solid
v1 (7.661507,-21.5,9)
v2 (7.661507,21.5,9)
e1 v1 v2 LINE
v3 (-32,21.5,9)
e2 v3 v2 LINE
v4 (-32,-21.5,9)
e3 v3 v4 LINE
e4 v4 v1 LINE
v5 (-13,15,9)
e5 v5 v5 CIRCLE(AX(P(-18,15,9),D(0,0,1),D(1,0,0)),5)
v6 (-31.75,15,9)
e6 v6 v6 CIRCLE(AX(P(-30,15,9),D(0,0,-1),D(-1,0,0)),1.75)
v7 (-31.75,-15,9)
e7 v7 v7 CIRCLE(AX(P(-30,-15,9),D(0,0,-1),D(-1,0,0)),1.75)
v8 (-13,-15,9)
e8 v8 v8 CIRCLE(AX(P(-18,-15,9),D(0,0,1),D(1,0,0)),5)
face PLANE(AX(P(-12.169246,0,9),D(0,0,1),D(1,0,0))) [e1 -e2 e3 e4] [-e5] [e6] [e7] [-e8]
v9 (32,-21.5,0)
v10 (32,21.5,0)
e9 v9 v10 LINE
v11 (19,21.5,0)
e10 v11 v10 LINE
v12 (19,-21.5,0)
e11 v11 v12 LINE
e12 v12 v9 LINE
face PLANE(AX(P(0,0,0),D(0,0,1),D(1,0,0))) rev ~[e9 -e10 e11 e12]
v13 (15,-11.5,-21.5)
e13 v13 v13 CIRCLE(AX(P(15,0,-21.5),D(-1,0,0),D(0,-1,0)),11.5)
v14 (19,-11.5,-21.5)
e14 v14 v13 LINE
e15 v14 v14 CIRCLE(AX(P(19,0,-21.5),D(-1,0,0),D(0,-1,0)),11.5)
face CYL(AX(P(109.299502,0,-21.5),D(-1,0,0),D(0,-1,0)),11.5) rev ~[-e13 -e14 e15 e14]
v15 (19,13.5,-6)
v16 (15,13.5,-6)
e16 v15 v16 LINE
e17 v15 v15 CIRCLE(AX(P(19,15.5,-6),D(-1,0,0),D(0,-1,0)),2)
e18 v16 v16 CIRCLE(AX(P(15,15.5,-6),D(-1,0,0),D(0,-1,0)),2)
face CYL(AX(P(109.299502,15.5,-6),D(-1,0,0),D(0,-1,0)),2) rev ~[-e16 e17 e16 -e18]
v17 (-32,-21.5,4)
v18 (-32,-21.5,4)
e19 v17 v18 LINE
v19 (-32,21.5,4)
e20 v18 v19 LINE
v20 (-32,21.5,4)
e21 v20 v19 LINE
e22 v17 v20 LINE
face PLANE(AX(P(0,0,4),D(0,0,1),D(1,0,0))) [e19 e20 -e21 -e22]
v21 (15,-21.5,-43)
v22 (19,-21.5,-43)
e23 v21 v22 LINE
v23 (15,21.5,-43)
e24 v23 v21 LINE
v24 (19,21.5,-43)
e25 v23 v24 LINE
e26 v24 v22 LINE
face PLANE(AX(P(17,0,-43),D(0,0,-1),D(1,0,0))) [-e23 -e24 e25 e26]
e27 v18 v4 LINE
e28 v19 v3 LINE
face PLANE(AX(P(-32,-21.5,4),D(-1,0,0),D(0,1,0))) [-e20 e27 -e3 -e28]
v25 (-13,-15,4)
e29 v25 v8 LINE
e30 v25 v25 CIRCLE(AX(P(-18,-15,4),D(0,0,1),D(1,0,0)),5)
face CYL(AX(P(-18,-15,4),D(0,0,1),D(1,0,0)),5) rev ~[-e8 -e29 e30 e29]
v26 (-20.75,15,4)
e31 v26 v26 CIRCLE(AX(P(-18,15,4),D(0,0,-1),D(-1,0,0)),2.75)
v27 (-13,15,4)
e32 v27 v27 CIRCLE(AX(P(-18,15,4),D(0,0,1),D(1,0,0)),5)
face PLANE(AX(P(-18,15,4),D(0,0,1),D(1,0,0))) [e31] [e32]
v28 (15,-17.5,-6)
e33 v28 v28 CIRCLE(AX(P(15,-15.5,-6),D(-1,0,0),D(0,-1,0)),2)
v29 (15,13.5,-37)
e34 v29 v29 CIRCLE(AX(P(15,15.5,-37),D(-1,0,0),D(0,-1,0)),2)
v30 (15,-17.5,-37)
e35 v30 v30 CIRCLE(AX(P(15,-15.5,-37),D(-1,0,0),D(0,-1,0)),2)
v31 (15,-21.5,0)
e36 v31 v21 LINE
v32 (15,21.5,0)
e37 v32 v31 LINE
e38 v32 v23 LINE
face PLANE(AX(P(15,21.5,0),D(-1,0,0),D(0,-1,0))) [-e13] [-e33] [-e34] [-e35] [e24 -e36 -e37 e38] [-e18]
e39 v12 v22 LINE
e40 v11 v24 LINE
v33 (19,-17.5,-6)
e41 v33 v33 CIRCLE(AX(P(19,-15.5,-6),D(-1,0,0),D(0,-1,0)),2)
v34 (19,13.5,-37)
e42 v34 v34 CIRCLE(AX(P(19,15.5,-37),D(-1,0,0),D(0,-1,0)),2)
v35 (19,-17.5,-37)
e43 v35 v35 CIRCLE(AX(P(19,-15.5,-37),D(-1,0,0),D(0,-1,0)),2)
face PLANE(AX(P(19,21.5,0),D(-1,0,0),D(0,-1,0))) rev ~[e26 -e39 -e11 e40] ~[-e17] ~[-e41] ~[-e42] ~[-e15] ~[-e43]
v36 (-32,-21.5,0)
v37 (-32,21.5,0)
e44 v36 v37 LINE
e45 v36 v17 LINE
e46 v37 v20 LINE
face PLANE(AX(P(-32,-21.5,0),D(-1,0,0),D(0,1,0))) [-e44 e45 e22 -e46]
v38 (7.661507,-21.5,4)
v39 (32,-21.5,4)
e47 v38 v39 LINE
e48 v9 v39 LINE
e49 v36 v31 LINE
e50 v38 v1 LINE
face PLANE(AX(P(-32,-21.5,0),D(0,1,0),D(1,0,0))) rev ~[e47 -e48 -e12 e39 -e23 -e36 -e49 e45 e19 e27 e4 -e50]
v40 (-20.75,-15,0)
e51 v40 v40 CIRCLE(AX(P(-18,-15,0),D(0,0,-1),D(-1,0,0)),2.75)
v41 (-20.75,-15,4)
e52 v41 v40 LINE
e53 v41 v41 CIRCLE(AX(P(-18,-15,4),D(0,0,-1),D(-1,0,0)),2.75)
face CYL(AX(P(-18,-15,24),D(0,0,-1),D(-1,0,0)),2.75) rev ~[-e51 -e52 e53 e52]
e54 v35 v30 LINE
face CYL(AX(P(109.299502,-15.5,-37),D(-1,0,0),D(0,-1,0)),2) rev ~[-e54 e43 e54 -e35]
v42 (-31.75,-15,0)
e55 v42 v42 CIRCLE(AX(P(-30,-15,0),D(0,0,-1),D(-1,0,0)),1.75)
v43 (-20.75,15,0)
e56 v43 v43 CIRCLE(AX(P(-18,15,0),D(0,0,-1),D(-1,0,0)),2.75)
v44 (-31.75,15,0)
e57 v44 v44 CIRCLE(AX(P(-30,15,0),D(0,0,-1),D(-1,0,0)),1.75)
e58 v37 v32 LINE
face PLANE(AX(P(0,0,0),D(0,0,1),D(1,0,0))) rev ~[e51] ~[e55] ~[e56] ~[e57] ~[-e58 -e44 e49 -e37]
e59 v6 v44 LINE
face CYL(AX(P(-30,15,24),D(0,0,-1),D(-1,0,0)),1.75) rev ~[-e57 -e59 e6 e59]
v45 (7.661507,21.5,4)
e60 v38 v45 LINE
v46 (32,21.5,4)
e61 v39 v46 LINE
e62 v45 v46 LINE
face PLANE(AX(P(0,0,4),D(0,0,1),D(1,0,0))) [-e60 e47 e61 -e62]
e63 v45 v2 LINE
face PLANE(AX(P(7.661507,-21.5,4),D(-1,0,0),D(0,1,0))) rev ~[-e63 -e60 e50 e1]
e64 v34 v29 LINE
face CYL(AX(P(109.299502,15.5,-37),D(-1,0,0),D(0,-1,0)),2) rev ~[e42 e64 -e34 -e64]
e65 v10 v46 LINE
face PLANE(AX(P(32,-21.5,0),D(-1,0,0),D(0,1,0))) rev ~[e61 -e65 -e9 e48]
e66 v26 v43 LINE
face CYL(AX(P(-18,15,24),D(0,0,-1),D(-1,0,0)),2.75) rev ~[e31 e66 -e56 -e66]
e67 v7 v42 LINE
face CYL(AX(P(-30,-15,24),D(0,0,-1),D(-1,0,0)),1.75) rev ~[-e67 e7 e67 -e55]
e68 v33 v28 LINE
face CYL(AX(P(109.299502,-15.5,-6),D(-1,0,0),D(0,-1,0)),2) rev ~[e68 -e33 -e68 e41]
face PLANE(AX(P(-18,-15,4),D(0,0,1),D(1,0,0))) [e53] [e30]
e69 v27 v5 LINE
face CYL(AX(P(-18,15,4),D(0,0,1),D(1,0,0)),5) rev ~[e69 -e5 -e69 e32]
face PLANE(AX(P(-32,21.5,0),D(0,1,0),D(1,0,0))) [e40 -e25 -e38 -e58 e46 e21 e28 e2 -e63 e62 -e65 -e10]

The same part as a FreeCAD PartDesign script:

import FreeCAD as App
import Part
import Sketcher
from FreeCAD import Vector


def add_polygon(sketch, points):
    """Adds a closed chain of lines whose ends are joined by coincident constraints."""
    first, n = sketch.GeometryCount, len(points)
    for a, b in zip(points, points[1:] + points[:1]):
        sketch.addGeometry(Part.LineSegment(App.Vector(*a, 0), App.Vector(*b, 0)), False)
    for i in range(n):
        sketch.addConstraint(Sketcher.Constraint("Coincident", first + i, 2, first + (i + 1) % n, 1))

doc = App.newDocument("Part")
body = doc.addObject("PartDesign::Body", "Body")

sketch1 = body.newObject("Sketcher::SketchObject", "Sketch")
sketch1.AttachmentSupport = (doc.getObject("XY_Plane"), [""])
sketch1.MapMode = "FlatFace"
add_polygon(sketch1, [(-32, 22), (-32, -22), (32, -22), (32, 22)])
sketch1.addConstraint(Sketcher.Constraint("Vertical", 0))
sketch1.addConstraint(Sketcher.Constraint("Horizontal", 1))
sketch1.addConstraint(Sketcher.Constraint("Vertical", 2))
sketch1.addConstraint(Sketcher.Constraint("Horizontal", 3))
sketch1.addConstraint(Sketcher.Constraint("Symmetric", 0, 2, 2, 2, -1, 1))
sketch1.addConstraint(Sketcher.Constraint("DistanceX", 1, 1, 1, 2, 64.0))
sketch1.addConstraint(Sketcher.Constraint("DistanceY", 0, 2, 0, 1, 43.0))
pad1 = body.newObject("PartDesign::Pad", "Pad")
pad1.Profile = sketch1
pad1.Length = 4

sketch2 = body.newObject("Sketcher::SketchObject", "Sketch001")
sketch2.AttachmentSupport = (doc.getObject("XY_Plane"), [""])
sketch2.MapMode = "FlatFace"
add_polygon(sketch2, [(15, -21.5), (15, 21.5), (19, 21.5), (19, -21.5)])
sketch2.addConstraint(Sketcher.Constraint("Vertical", 0))
sketch2.addConstraint(Sketcher.Constraint("Horizontal", 1))
sketch2.addConstraint(Sketcher.Constraint("Vertical", 2))
sketch2.addConstraint(Sketcher.Constraint("Horizontal", 3))
sketch2.addConstraint(Sketcher.Constraint("DistanceX", 1, 1, 1, 2, 4.0))
sketch2.addConstraint(Sketcher.Constraint("DistanceY", 0, 1, 0, 2, 43.0))
sketch2.addConstraint(Sketcher.Constraint("DistanceX", -1, 1, 0, 2, 15.0))
sketch2.addConstraint(Sketcher.Constraint("DistanceY", -1, 1, 0, 2, 21.5))
pad2 = body.newObject("PartDesign::Pad", "Pad001")
pad2.Profile = sketch2
pad2.Length = 43
pad2.Reversed = True

sketch3 = body.newObject("Sketcher::SketchObject", "Sketch002")
sketch3.AttachmentSupport = (doc.getObject("YZ_Plane"), [""])
sketch3.MapMode = "FlatFace"
sketch3.AttachmentOffset = App.Placement(Vector(0, 0, 19), App.Rotation())
sketch3.addGeometry(Part.Circle(Vector(15.5, -37, 0), Vector(0, 0, 1), 2), False)
sketch3.addGeometry(Part.Circle(Vector(15.5, -6, 0), Vector(0, 0, 1), 2), False)
sketch3.addGeometry(Part.Circle(Vector(-15.5, -37, 0), Vector(0, 0, 1), 2), False)
sketch3.addGeometry(Part.Circle(Vector(-15.5, -6, 0), Vector(0, 0, 1), 2), False)
sketch3.addConstraint(Sketcher.Constraint("Equal", 0, 1))
sketch3.addConstraint(Sketcher.Constraint("Equal", 1, 2))
sketch3.addConstraint(Sketcher.Constraint("Equal", 2, 3))
sketch3.addConstraint(Sketcher.Constraint("Symmetric", 0, 3, 2, 3, -2))
sketch3.addConstraint(Sketcher.Constraint("Symmetric", 1, 3, 3, 3, -2))
sketch3.addConstraint(Sketcher.Constraint("Vertical", 0, 3, 1, 3))
sketch3.addConstraint(Sketcher.Constraint("Diameter", 0, 4.0))
sketch3.addConstraint(Sketcher.Constraint("DistanceY", 0, 3, -1, 1, 37.0))
sketch3.addConstraint(Sketcher.Constraint("DistanceY", 1, 3, -1, 1, 6.0))
sketch3.addConstraint(Sketcher.Constraint("DistanceX", 2, 3, 0, 3, 31.0))
doc.recompute()
hole = body.newObject("PartDesign::Hole", "Hole")
hole.Profile = sketch3
hole.ThreadType = "None"
hole.Diameter = 4
hole.DepthType = "ThroughAll"

sketch4 = body.newObject("Sketcher::SketchObject", "Sketch003")
sketch4.AttachmentSupport = (doc.getObject("YZ_Plane"), [""])
sketch4.MapMode = "FlatFace"
sketch4.AttachmentOffset = App.Placement(Vector(0, 0, 19), App.Rotation())
sketch4.addGeometry(Part.Circle(Vector(0, -22, 0), Vector(0, 0, 1), 12), False)
sketch4.addConstraint(Sketcher.Constraint("PointOnObject", 0, 3, -2))
sketch4.addConstraint(Sketcher.Constraint("Diameter", 0, 23.0))
sketch4.addConstraint(Sketcher.Constraint("DistanceY", 0, 3, -1, 1, 21.5))
doc.recompute()
hole2 = body.newObject("PartDesign::Hole", "Hole001")
hole2.Profile = sketch4
hole2.ThreadType = "None"
hole2.Diameter = 23
hole2.DepthType = "ThroughAll"

sketch5 = body.newObject("Sketcher::SketchObject", "Sketch004")
sketch5.AttachmentSupport = (doc.getObject("XY_Plane"), [""])
sketch5.MapMode = "FlatFace"
sketch5.AttachmentOffset = App.Placement(Vector(0, 0, 4), App.Rotation())
add_polygon(sketch5, [(-32, 22), (-32, -22), (8, -22), (8, 22)])
sketch5.addConstraint(Sketcher.Constraint("Vertical", 0))
sketch5.addConstraint(Sketcher.Constraint("Horizontal", 1))
sketch5.addConstraint(Sketcher.Constraint("Vertical", 2))
sketch5.addConstraint(Sketcher.Constraint("Horizontal", 3))
sketch5.addConstraint(Sketcher.Constraint("DistanceY", 0, 2, 0, 1, 43.0))
sketch5.addConstraint(Sketcher.Constraint("DistanceX", 0, 2, -1, 1, 32.0))
sketch5.addConstraint(Sketcher.Constraint("DistanceY", 0, 2, -1, 1, 21.5))
sketch5.addConstraint(Sketcher.Constraint("DistanceX", 1, 1, 1, 2, 39.661507))
pad3 = body.newObject("PartDesign::Pad", "Pad002")
pad3.Profile = sketch5
pad3.Length = 20

sketch6 = body.newObject("Sketcher::SketchObject", "Sketch005")
sketch6.AttachmentSupport = (doc.getObject("XY_Plane"), [""])
sketch6.MapMode = "FlatFace"
sketch6.AttachmentOffset = App.Placement(Vector(0, 0, 24), App.Rotation())
sketch6.addGeometry(Part.Circle(Vector(-18, -15, 0), Vector(0, 0, 1), 2.8), False)
sketch6.addGeometry(Part.Circle(Vector(-18, 15, 0), Vector(0, 0, 1), 2.8), False)
sketch6.addConstraint(Sketcher.Constraint("Equal", 0, 1))
sketch6.addConstraint(Sketcher.Constraint("Symmetric", 0, 3, 1, 3, -1))
sketch6.addConstraint(Sketcher.Constraint("Diameter", 0, 5.5))
sketch6.addConstraint(Sketcher.Constraint("DistanceX", 0, 3, -1, 1, 18.0))
sketch6.addConstraint(Sketcher.Constraint("DistanceY", 0, 3, -1, 1, 15.0))
doc.recompute()
hole3 = body.newObject("PartDesign::Hole", "Hole002")
hole3.Profile = sketch6
hole3.ThreadType = "None"
hole3.Diameter = 5.5
hole3.DepthType = "ThroughAll"
hole3.HoleCutType = "Counterbore"
hole3.HoleCutDiameter = 10
hole3.HoleCutDepth = 20

sketch7 = body.newObject("Sketcher::SketchObject", "Sketch006")
sketch7.AttachmentSupport = (doc.getObject("XY_Plane"), [""])
sketch7.MapMode = "FlatFace"
sketch7.AttachmentOffset = App.Placement(Vector(0, 0, 24), App.Rotation())
sketch7.addGeometry(Part.Circle(Vector(-30, 15, 0), Vector(0, 0, 1), 1.8), False)
sketch7.addGeometry(Part.Circle(Vector(-30, -15, 0), Vector(0, 0, 1), 1.8), False)
sketch7.addConstraint(Sketcher.Constraint("Equal", 0, 1))
sketch7.addConstraint(Sketcher.Constraint("Symmetric", 0, 3, 1, 3, -1))
sketch7.addConstraint(Sketcher.Constraint("Diameter", 0, 3.5))
sketch7.addConstraint(Sketcher.Constraint("DistanceX", 0, 3, -1, 1, 30.0))
sketch7.addConstraint(Sketcher.Constraint("DistanceY", -1, 1, 0, 3, 15.0))
doc.recompute()
hole4 = body.newObject("PartDesign::Hole", "Hole003")
hole4.Profile = sketch7
hole4.ThreadType = "None"
hole4.Diameter = 3.5
hole4.DepthType = "ThroughAll"
hole4.HoleCutType = "Counterbore"
hole4.HoleCutDiameter = 5
hole4.HoleCutDepth = 15

sketch8 = body.newObject("Sketcher::SketchObject", "Sketch007")
sketch8.AttachmentSupport = (doc.getObject("XY_Plane"), [""])
sketch8.MapMode = "FlatFace"
sketch8.AttachmentOffset = App.Placement(Vector(0, 0, 24), App.Rotation())
add_polygon(sketch8, [(-32, 22), (-32, -22), (8, -22), (8, 22)])
sketch8.addConstraint(Sketcher.Constraint("Vertical", 0))
sketch8.addConstraint(Sketcher.Constraint("Horizontal", 1))
sketch8.addConstraint(Sketcher.Constraint("Vertical", 2))
sketch8.addConstraint(Sketcher.Constraint("Horizontal", 3))
sketch8.addConstraint(Sketcher.Constraint("DistanceY", 0, 2, 0, 1, 43.0))
sketch8.addConstraint(Sketcher.Constraint("DistanceX", 0, 2, -1, 1, 32.0))
sketch8.addConstraint(Sketcher.Constraint("DistanceY", 0, 2, -1, 1, 21.5))
sketch8.addConstraint(Sketcher.Constraint("DistanceX", 1, 1, 1, 2, 39.661507))
pocket1 = body.newObject("PartDesign::Pocket", "Pocket")
pocket1.Profile = sketch8
pocket1.Length = 15

doc.recompute()
